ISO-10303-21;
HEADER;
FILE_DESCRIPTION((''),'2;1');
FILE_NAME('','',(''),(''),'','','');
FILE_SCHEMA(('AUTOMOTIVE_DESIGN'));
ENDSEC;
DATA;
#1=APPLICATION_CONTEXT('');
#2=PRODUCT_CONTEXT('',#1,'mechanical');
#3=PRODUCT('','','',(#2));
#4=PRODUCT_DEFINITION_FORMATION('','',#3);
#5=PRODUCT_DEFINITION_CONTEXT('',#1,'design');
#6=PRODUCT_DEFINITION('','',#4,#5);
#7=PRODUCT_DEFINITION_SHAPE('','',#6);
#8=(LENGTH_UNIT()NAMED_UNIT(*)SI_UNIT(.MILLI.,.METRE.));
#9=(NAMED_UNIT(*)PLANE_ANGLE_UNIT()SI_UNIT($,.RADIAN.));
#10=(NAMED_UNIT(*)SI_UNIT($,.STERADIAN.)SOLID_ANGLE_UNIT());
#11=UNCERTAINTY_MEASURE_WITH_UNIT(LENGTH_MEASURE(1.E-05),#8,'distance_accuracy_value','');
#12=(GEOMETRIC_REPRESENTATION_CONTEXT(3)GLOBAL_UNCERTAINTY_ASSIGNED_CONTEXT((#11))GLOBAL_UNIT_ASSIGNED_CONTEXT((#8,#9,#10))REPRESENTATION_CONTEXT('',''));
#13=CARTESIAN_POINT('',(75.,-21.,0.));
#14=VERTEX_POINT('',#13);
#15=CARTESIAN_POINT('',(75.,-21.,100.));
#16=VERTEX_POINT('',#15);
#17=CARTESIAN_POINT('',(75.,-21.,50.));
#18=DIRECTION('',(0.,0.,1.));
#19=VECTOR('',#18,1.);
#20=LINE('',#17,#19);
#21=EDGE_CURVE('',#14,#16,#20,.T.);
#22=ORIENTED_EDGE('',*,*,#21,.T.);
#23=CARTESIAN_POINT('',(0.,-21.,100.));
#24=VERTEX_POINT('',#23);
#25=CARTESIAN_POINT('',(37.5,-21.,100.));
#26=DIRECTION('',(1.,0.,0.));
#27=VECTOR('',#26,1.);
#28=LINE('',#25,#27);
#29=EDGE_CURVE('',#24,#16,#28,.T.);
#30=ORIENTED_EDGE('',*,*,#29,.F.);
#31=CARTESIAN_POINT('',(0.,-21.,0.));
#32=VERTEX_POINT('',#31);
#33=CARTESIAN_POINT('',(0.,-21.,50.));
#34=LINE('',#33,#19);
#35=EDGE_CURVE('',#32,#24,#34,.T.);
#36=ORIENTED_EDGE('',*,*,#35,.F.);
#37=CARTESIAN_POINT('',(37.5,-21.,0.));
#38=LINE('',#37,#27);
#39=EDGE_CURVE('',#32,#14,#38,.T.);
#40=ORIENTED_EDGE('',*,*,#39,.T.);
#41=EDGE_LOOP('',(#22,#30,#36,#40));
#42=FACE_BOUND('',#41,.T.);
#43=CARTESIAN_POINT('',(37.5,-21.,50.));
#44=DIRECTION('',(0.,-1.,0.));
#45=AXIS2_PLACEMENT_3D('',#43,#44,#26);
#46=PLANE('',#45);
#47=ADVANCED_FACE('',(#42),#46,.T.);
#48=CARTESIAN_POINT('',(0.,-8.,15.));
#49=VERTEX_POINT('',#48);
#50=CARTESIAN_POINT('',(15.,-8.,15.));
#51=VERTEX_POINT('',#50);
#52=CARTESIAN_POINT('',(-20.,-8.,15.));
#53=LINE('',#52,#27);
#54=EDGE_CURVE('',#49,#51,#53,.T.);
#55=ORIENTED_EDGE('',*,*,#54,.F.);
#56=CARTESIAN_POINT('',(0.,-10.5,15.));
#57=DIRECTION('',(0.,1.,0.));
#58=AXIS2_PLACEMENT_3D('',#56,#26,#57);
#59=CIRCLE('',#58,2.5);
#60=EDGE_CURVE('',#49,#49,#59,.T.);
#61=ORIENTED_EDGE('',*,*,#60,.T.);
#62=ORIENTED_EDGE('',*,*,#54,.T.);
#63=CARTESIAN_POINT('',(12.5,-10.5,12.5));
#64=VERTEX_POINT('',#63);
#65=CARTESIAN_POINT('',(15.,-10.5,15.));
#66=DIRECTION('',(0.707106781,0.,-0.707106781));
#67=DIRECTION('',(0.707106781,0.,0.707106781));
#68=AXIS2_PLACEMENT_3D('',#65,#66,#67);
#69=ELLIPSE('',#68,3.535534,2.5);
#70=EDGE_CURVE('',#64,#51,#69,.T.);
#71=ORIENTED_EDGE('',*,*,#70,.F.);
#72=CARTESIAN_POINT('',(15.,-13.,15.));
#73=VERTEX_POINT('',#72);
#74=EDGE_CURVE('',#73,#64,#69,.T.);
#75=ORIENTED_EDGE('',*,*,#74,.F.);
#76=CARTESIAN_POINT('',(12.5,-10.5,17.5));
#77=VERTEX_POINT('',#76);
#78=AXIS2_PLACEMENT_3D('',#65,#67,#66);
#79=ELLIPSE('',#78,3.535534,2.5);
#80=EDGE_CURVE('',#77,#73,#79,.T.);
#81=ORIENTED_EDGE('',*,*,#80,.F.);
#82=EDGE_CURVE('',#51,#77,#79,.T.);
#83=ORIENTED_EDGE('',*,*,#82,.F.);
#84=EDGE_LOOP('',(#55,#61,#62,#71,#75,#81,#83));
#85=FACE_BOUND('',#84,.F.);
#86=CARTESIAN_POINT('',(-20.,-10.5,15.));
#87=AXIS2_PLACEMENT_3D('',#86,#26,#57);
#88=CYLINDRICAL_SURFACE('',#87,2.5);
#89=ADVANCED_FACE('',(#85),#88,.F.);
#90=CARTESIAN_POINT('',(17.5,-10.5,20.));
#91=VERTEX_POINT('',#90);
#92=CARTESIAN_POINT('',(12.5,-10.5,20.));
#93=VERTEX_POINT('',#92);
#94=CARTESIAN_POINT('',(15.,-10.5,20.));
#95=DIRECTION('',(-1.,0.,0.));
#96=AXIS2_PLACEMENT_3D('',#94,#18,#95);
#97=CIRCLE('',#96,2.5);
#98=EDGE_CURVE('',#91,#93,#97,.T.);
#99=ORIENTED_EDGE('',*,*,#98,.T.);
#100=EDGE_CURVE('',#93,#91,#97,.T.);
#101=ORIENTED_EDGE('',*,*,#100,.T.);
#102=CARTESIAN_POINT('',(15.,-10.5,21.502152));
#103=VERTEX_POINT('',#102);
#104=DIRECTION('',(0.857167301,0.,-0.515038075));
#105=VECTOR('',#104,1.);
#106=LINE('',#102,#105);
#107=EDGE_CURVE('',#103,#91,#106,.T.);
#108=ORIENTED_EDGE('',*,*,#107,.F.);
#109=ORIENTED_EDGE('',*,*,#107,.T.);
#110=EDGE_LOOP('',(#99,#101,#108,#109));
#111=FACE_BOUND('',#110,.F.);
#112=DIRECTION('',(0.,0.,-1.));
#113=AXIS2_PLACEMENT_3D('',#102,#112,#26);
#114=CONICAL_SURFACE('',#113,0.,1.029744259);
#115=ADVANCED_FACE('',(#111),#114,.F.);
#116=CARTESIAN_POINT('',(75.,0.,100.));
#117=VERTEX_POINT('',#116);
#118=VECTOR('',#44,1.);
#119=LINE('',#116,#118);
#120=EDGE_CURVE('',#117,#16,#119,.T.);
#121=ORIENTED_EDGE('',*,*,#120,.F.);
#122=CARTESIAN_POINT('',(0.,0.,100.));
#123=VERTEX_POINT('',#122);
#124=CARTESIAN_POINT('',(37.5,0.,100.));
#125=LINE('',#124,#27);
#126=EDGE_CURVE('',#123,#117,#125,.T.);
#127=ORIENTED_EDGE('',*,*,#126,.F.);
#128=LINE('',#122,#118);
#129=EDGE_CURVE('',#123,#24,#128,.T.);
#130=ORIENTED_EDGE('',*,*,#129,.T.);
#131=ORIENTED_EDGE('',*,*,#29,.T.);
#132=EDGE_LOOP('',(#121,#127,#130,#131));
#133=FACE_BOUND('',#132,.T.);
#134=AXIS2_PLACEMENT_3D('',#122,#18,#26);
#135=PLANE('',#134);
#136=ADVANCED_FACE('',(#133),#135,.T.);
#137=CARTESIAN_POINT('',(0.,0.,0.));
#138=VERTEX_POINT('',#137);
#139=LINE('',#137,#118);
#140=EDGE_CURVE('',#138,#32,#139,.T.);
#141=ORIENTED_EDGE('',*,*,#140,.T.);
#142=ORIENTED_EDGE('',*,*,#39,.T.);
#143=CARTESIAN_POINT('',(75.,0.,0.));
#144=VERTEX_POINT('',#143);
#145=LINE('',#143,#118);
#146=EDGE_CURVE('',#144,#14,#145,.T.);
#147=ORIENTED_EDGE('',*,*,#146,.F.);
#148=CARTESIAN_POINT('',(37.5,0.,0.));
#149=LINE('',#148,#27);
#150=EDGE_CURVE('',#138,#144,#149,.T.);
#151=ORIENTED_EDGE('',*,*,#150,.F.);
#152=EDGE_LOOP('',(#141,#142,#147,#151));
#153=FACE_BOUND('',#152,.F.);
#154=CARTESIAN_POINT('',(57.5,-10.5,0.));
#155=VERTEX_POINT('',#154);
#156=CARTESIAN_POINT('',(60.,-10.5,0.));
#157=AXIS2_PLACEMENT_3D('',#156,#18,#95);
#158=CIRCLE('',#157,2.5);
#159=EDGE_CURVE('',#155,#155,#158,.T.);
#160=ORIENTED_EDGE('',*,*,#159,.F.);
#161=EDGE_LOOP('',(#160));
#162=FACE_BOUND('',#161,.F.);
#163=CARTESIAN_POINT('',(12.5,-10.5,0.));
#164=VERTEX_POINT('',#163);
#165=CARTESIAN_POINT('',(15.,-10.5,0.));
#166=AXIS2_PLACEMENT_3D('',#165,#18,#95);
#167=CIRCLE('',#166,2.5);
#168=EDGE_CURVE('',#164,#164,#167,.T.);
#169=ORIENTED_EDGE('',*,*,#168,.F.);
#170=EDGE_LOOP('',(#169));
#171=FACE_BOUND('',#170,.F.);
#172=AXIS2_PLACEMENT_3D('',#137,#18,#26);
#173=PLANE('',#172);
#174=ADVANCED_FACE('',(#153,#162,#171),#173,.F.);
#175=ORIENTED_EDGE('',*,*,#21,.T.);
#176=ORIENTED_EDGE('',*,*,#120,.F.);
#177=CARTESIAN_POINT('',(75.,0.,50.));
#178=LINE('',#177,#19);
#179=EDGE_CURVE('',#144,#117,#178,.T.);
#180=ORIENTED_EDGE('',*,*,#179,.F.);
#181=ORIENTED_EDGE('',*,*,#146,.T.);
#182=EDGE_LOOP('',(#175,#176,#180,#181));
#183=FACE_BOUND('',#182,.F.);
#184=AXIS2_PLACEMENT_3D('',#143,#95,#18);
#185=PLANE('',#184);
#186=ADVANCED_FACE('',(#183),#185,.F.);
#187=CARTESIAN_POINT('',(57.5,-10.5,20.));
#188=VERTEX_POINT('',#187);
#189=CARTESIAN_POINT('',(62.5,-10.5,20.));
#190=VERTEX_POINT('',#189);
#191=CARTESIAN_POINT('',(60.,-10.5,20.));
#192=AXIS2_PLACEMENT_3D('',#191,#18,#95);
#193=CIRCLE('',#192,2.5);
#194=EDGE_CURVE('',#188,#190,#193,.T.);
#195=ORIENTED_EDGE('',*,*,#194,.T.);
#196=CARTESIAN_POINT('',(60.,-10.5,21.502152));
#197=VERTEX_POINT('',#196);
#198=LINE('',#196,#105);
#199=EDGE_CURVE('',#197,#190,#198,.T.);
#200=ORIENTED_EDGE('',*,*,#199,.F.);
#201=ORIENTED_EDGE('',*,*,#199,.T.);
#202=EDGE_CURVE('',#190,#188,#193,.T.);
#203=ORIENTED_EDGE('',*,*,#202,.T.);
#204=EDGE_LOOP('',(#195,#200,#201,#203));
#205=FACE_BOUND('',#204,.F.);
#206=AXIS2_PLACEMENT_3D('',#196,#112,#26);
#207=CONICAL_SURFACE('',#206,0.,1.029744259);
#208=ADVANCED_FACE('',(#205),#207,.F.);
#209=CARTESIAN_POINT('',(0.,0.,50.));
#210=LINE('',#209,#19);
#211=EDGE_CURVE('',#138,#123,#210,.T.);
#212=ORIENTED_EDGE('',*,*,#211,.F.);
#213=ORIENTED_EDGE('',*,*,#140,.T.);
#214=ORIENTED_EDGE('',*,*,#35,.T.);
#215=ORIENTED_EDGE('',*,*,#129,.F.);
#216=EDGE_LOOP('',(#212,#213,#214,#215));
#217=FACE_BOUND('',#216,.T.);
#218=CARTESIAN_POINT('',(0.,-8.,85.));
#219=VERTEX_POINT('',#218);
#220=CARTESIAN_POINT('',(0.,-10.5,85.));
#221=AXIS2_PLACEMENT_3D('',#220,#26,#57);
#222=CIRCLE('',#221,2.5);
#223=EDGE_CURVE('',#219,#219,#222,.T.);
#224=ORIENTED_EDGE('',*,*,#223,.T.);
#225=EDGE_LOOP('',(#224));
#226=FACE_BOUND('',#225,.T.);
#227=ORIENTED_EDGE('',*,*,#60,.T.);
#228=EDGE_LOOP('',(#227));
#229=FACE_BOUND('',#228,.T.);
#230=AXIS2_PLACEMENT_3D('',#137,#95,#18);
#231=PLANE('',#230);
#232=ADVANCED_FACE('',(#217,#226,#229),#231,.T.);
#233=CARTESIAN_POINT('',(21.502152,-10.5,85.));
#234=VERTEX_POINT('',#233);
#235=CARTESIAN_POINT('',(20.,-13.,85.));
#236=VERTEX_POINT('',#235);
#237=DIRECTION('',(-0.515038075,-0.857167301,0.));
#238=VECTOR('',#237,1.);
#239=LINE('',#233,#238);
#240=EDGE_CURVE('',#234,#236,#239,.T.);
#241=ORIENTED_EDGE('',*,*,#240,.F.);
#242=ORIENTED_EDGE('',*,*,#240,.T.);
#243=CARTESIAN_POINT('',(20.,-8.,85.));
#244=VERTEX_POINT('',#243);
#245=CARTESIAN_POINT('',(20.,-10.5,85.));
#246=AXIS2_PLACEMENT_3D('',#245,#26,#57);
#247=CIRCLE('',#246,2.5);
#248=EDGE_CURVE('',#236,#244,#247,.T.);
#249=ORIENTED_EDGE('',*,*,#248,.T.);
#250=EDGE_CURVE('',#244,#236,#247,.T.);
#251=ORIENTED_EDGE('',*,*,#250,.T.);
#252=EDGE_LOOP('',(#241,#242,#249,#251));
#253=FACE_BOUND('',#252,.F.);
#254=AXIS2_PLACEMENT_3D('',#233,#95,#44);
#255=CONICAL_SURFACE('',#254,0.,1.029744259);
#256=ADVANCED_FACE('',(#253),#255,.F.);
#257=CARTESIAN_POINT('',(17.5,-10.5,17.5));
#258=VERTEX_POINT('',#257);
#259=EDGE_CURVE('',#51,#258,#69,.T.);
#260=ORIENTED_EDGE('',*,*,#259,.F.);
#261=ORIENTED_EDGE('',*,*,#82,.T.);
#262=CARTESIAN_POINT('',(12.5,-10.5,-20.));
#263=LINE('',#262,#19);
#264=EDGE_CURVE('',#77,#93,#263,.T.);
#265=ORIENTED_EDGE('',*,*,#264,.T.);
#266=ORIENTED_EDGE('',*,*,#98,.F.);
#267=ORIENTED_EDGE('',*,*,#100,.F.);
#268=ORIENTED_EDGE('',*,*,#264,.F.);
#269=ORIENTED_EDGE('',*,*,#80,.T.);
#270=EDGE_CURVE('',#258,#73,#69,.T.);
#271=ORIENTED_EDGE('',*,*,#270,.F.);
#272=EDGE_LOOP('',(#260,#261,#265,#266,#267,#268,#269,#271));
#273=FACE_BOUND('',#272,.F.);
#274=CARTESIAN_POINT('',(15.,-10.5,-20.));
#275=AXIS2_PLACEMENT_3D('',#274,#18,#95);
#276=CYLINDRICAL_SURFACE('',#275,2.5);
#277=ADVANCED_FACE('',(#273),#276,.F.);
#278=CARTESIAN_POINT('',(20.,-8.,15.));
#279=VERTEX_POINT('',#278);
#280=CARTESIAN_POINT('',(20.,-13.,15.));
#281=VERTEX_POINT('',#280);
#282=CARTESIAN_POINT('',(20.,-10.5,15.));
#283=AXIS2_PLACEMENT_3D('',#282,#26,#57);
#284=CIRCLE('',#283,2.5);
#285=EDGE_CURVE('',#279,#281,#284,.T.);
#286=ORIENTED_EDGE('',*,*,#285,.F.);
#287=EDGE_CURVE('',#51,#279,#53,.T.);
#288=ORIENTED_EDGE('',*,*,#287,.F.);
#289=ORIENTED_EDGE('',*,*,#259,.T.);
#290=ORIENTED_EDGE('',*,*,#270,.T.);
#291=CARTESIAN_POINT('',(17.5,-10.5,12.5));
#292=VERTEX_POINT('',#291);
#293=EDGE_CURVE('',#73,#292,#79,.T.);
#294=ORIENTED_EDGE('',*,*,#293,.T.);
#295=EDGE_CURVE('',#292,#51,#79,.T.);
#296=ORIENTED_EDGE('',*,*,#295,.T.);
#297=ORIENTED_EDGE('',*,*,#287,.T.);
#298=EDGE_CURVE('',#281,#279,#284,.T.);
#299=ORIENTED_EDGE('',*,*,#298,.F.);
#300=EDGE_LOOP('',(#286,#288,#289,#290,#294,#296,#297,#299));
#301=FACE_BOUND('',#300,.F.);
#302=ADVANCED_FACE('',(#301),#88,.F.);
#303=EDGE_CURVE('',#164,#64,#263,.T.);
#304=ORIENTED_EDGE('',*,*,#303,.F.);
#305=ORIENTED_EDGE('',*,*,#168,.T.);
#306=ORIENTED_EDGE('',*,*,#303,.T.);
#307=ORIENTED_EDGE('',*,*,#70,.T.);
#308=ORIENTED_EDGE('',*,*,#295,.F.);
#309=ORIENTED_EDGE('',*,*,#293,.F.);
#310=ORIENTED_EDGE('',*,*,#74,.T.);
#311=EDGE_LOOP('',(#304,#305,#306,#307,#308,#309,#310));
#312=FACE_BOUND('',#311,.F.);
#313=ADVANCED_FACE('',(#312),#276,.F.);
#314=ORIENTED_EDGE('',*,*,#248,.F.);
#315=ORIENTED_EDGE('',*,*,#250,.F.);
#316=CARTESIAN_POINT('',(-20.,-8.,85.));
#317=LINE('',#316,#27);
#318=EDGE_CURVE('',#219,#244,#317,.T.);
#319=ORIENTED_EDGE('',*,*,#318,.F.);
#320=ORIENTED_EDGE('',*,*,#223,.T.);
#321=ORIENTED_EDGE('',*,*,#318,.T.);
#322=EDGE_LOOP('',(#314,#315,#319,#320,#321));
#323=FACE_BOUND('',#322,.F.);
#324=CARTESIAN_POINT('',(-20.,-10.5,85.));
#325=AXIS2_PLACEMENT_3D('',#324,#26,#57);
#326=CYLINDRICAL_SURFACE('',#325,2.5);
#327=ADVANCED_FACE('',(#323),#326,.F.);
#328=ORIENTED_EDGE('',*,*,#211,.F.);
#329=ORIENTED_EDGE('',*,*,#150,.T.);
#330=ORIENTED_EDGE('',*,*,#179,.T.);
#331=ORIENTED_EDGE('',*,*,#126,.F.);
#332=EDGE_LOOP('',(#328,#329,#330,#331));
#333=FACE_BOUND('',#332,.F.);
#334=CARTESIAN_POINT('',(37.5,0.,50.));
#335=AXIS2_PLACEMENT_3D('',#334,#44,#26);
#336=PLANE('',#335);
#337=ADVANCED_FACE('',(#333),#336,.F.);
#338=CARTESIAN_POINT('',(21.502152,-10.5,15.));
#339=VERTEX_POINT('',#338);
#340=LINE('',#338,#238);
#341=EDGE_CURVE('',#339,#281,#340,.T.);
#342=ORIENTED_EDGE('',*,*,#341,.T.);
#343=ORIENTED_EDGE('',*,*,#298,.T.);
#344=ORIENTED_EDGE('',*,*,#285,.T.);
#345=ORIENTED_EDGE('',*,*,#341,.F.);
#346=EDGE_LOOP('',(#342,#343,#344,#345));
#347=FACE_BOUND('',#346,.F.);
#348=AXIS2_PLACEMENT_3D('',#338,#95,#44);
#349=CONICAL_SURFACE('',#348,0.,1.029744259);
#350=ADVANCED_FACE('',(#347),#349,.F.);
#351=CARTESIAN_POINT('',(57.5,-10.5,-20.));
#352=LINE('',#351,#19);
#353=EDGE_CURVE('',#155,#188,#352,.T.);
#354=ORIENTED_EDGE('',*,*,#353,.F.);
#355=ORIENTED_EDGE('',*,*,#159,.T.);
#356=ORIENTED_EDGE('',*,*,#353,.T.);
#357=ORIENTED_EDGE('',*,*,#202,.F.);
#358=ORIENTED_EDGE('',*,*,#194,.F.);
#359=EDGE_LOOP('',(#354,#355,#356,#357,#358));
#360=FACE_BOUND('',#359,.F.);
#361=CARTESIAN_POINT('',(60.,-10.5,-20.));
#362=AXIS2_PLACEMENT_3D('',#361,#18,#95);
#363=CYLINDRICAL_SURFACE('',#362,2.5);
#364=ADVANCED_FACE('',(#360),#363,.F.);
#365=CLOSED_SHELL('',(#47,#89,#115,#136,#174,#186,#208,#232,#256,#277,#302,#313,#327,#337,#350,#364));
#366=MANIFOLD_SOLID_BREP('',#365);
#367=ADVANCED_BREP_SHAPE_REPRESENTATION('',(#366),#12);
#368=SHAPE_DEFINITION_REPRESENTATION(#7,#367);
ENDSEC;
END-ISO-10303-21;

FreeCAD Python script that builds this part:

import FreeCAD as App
import Part
import Sketcher
Q = App.Units.Quantity


def add_polygon(sketch, points):
    """Adds a closed chain of lines whose ends are joined by coincident constraints."""
    first, n = sketch.GeometryCount, len(points)
    for a, b in zip(points, points[1:] + points[:1]):
        sketch.addGeometry(Part.LineSegment(App.Vector(*a, 0), App.Vector(*b, 0)), False)
    for i in range(n):
        sketch.addConstraint(Sketcher.Constraint("Coincident", first + i, 2, first + (i + 1) % n, 1))

doc = App.newDocument("Part")
params = doc.addObject("Spreadsheet::Sheet", "Params")
for row, (alias, value) in enumerate([
    ("sketch1_width", "75 mm"),
    ("sketch1_height", "100 mm"),
    ("pad1_length", "21 mm"),
    ("sketch2_diameter", "5 mm"),
    ("hole_diameter", "5 mm"),
    ("hole_depth", "20 mm"),
    ("sketch3_diameter", "5 mm"),
    ("hole2_diameter", "5 mm"),
    ("hole2_depth", "20 mm"),
], start=1):
    params.set(f"A{row}", alias)
    params.set(f"B{row}", "=" + value)
    params.setAlias(f"B{row}", alias)

body = doc.addObject("PartDesign::Body", "Body")

# Sketch on XZ plane
sketch1 = body.newObject("Sketcher::SketchObject", "Sketch")
sketch1.AttachmentSupport = (doc.getObject("XZ_Plane"), [""])
sketch1.MapMode = "FlatFace"
add_polygon(sketch1, [(0, 100), (0, 0), (75, 0), (75, 100)])  # lines 0-3
sketch1.addConstraint(Sketcher.Constraint("Vertical", 0))
sketch1.addConstraint(Sketcher.Constraint("Horizontal", 1))
sketch1.addConstraint(Sketcher.Constraint("Vertical", 2))
sketch1.addConstraint(Sketcher.Constraint("Horizontal", 3))
sketch1.addConstraint(Sketcher.Constraint("Coincident", 0, 2, -1, 1))
sketch1.addConstraint(Sketcher.Constraint("DistanceX", 1, 1, 1, 2, Q("75 mm")))
sketch1.addConstraint(Sketcher.Constraint("DistanceY", 0, 2, 0, 1, Q("100 mm")))
sketch1.setExpression("Constraints[9]", "Params.sketch1_width")
sketch1.setExpression("Constraints[10]", "Params.sketch1_height")
pad1 = body.newObject("PartDesign::Pad", "Pad")
pad1.Profile = sketch1
pad1.setExpression("Length", "Params.pad1_length")

# Sketch on YZ plane
sketch2 = body.newObject("Sketcher::SketchObject", "Sketch001")
sketch2.AttachmentSupport = (doc.getObject("YZ_Plane"), [""])
sketch2.MapMode = "FlatFace"
sketch2.addGeometry(Part.Circle(App.Vector(-10.5, 15, 0), App.Vector(0, 0, 1), 2.5), False)
sketch2.addGeometry(Part.Circle(App.Vector(-10.5, 85, 0), App.Vector(0, 0, 1), 2.5), False)
sketch2.addConstraint(Sketcher.Constraint("Equal", 0, 1))
sketch2.addConstraint(Sketcher.Constraint("Vertical", 0, 3, 1, 3))
sketch2.addConstraint(Sketcher.Constraint("Diameter", 0, Q("5 mm")))
sketch2.addConstraint(Sketcher.Constraint("DistanceY", -1, 1, 0, 3, Q("15 mm")))
sketch2.addConstraint(Sketcher.Constraint("DistanceY", -1, 1, 1, 3, Q("85 mm")))
sketch2.addConstraint(Sketcher.Constraint("DistanceX", 0, 3, -1, 1, Q("10.5 mm")))
sketch2.setExpression("Constraints[2]", "Params.sketch2_diameter")
doc.recompute()
hole = body.newObject("PartDesign::Hole", "Hole")
hole.Profile = sketch2
hole.ThreadType = "None"
hole.setExpression("Diameter", "Params.hole_diameter")
hole.DepthType = "Dimension"
hole.setExpression("Depth", "Params.hole_depth")
hole.DrillPoint = "Angled"
hole.DrillPointAngle = 118
hole.Reversed = True

# Sketch on XY plane
sketch3 = body.newObject("Sketcher::SketchObject", "Sketch002")
sketch3.AttachmentSupport = (doc.getObject("XY_Plane"), [""])
sketch3.MapMode = "FlatFace"
sketch3.addGeometry(Part.Circle(App.Vector(15, -10.5, 0), App.Vector(0, 0, 1), 2.5), False)
sketch3.addGeometry(Part.Circle(App.Vector(60, -10.5, 0), App.Vector(0, 0, 1), 2.5), False)
sketch3.addConstraint(Sketcher.Constraint("Equal", 0, 1))
sketch3.addConstraint(Sketcher.Constraint("Horizontal", 0, 3, 1, 3))
sketch3.addConstraint(Sketcher.Constraint("Diameter", 0, Q("5 mm")))
sketch3.addConstraint(Sketcher.Constraint("DistanceX", -1, 1, 0, 3, Q("15 mm")))
sketch3.addConstraint(Sketcher.Constraint("DistanceX", -1, 1, 1, 3, Q("60 mm")))
sketch3.addConstraint(Sketcher.Constraint("DistanceY", 0, 3, -1, 1, Q("10.5 mm")))
sketch3.setExpression("Constraints[2]", "Params.sketch3_diameter")
doc.recompute()
hole2 = body.newObject("PartDesign::Hole", "Hole001")
hole2.Profile = sketch3
hole2.ThreadType = "None"
hole2.setExpression("Diameter", "Params.hole2_diameter")
hole2.DepthType = "Dimension"
hole2.setExpression("Depth", "Params.hole2_depth")
hole2.DrillPoint = "Angled"
hole2.DrillPointAngle = 118
hole2.Reversed = True

doc.recompute()
